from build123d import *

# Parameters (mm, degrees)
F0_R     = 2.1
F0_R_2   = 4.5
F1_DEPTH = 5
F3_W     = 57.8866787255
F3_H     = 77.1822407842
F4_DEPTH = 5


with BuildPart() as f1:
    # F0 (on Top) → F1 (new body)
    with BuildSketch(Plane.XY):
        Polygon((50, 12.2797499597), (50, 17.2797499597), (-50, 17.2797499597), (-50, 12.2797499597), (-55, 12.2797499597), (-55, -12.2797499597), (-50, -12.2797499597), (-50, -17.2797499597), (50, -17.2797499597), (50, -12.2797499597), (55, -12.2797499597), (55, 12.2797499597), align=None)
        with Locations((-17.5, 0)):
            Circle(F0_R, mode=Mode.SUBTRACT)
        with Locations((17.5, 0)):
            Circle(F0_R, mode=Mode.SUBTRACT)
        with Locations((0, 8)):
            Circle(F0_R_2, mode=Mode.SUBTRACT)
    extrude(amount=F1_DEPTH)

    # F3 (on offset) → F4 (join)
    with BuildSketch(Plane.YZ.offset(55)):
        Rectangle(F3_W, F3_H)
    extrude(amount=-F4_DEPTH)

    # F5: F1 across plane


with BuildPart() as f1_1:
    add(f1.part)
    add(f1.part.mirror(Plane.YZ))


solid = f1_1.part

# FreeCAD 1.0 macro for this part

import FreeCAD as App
import Part
import Sketcher

V = App.Vector
Q = App.Units.Quantity


def add_polygon(sketch, points):
    """Adds a closed chain of lines whose ends are joined by coincident constraints."""
    first, n = sketch.GeometryCount, len(points)
    for a, b in zip(points, points[1:] + points[:1]):
        sketch.addGeometry(Part.LineSegment(App.Vector(*a, 0), App.Vector(*b, 0)), False)
    for i in range(n):
        sketch.addConstraint(Sketcher.Constraint("Coincident", first + i, 2, first + (i + 1) % n, 1))

doc = App.newDocument("Part")
params = doc.addObject("Spreadsheet::Sheet", "Params")
for row, (alias, value) in enumerate([
    ("sketch1_diameter", "9 mm"),
    ("sketch1_diameter2", "4.2 mm"),
    ("sketch1_width", "100 mm"),
    ("sketch1_width2", "5 mm"),
    ("pad1_length", "5 mm"),
    ("pad2_length", "5 mm"),
], start=1):
    params.set(f"A{row}", alias)
    params.set(f"B{row}", "=" + value)
    params.setAlias(f"B{row}", alias)

body = doc.addObject("PartDesign::Body", "Body")

# Sketch on XY plane
sketch1 = body.newObject("Sketcher::SketchObject", "Sketch")
sketch1.AttachmentSupport = (doc.getObject("XY_Plane"), [""])
sketch1.MapMode = "FlatFace"
add_polygon(sketch1, [(50, 12.3), (50, 17.3), (-50, 17.3), (-50, 12.3), (-55, 12.3), (-55, -12.3), (-50, -12.3), (-50, -17.3), (50, -17.3), (50, -12.3), (55, -12.3), (55, 12.3)])  # lines 0-11
sketch1.addGeometry(Part.Circle(V(-17.5, 0, 0), V(0, 0, 1), 2.1), False)  # 12
sketch1.addGeometry(Part.Circle(V(17.5, 0, 0), V(0, 0, 1), 2.1), False)  # 13
sketch1.addGeometry(Part.Circle(V(0, 8, 0), V(0, 0, 1), 4.5), False)  # 14
sketch1.addConstraint([
    Sketcher.Constraint("Vertical", 0),
    Sketcher.Constraint("Horizontal", 1),
    Sketcher.Constraint("Vertical", 2),
    Sketcher.Constraint("Horizontal", 3),
    Sketcher.Constraint("Vertical", 4),
    Sketcher.Constraint("Horizontal", 5),
    Sketcher.Constraint("Vertical", 6),
    Sketcher.Constraint("Horizontal", 7),
    Sketcher.Constraint("Vertical", 8),
    Sketcher.Constraint("Horizontal", 9),
    Sketcher.Constraint("Vertical", 10),
    Sketcher.Constraint("Horizontal", 11),
    Sketcher.Constraint("Equal", 12, 13),
    Sketcher.Constraint("Symmetric", 12, 3, 13, 3, -1, 1),
    Sketcher.Constraint("Symmetric", 0, 2, 6, 2, -1, 1),
    Sketcher.Constraint("Symmetric", 2, 2, 8, 2, -1, 1),
    Sketcher.Constraint("Symmetric", 4, 2, 10, 2, -1, 1),
    Sketcher.Constraint("Symmetric", 5, 2, 8, 2, -2),
    Sketcher.Constraint("PointOnObject", 12, 3, -1),
    Sketcher.Constraint("PointOnObject", 14, 3, -2),
    Sketcher.Constraint("Equal", 11, 0),
    Sketcher.Constraint("Diameter", 14, Q("9 mm")),
    Sketcher.Constraint("Diameter", 12, Q("4.2 mm")),
    Sketcher.Constraint("DistanceX", 1, 2, 1, 1, Q("100 mm")),
    Sketcher.Constraint("DistanceX", 3, 2, 3, 1, Q("5 mm")),
    Sketcher.Constraint("DistanceY", -1, 1, 14, 3, Q("8 mm")),
    Sketcher.Constraint("DistanceX", 12, 3, 13, 3, Q("35 mm")),
    Sketcher.Constraint("DistanceY", 4, 2, 4, 1, Q("24.5595 mm")),
])
sketch1.setExpression("Constraints[33]", "Params.sketch1_diameter")
sketch1.setExpression("Constraints[34]", "Params.sketch1_diameter2")
sketch1.setExpression("Constraints[35]", "Params.sketch1_width")
sketch1.setExpression("Constraints[36]", "Params.sketch1_width2")
pad1 = body.newObject("PartDesign::Pad", "Pad")
pad1.Profile = sketch1
pad1.setExpression("Length", "Params.pad1_length")

# Sketch on YZ plane
sketch2 = body.newObject("Sketcher::SketchObject", "Sketch001")
sketch2.AttachmentSupport = (doc.getObject("YZ_Plane"), [""])
sketch2.MapMode = "FlatFace"
sketch2.AttachmentOffset = App.Placement(V(0, 0, 55), App.Rotation())
add_polygon(sketch2, [(-29, 39), (-29, -39), (29, -39), (29, 39)])  # lines 0-3
sketch2.addConstraint([
    Sketcher.Constraint("Vertical", 0),
    Sketcher.Constraint("Horizontal", 1),
    Sketcher.Constraint("Vertical", 2),
    Sketcher.Constraint("Horizontal", 3),
    Sketcher.Constraint("Symmetric", 0, 2, 2, 2, -1, 1),
    Sketcher.Constraint("DistanceX", 1, 1, 1, 2, Q("57.886679 mm")),
    Sketcher.Constraint("DistanceY", 0, 2, 0, 1, Q("77.182241 mm")),
])
pad2 = body.newObject("PartDesign::Pad", "Pad001")
pad2.Profile = sketch2
pad2.setExpression("Length", "Params.pad2_length")
pad2.Reversed = True
body2 = doc.addObject("PartDesign::Body", "Body001")
doc.recompute()

body2.BaseFeature = body
doc.recompute()

mirroring = doc.addObject("Part::Mirroring", "Mirroring")
mirroring.Source = body
mirroring.Base = V(0, 0, 0)
mirroring.Normal = V(1, 0, 0)
body3 = doc.addObject("PartDesign::Body", "Body002")
body3.BaseFeature = mirroring
boolean = body2.newObject("PartDesign::Boolean", "Boolean")
boolean.Type = "Fuse"
boolean.addObjects([body3])
doc.recompute()
mirroring.Visibility = False

doc.recompute()
